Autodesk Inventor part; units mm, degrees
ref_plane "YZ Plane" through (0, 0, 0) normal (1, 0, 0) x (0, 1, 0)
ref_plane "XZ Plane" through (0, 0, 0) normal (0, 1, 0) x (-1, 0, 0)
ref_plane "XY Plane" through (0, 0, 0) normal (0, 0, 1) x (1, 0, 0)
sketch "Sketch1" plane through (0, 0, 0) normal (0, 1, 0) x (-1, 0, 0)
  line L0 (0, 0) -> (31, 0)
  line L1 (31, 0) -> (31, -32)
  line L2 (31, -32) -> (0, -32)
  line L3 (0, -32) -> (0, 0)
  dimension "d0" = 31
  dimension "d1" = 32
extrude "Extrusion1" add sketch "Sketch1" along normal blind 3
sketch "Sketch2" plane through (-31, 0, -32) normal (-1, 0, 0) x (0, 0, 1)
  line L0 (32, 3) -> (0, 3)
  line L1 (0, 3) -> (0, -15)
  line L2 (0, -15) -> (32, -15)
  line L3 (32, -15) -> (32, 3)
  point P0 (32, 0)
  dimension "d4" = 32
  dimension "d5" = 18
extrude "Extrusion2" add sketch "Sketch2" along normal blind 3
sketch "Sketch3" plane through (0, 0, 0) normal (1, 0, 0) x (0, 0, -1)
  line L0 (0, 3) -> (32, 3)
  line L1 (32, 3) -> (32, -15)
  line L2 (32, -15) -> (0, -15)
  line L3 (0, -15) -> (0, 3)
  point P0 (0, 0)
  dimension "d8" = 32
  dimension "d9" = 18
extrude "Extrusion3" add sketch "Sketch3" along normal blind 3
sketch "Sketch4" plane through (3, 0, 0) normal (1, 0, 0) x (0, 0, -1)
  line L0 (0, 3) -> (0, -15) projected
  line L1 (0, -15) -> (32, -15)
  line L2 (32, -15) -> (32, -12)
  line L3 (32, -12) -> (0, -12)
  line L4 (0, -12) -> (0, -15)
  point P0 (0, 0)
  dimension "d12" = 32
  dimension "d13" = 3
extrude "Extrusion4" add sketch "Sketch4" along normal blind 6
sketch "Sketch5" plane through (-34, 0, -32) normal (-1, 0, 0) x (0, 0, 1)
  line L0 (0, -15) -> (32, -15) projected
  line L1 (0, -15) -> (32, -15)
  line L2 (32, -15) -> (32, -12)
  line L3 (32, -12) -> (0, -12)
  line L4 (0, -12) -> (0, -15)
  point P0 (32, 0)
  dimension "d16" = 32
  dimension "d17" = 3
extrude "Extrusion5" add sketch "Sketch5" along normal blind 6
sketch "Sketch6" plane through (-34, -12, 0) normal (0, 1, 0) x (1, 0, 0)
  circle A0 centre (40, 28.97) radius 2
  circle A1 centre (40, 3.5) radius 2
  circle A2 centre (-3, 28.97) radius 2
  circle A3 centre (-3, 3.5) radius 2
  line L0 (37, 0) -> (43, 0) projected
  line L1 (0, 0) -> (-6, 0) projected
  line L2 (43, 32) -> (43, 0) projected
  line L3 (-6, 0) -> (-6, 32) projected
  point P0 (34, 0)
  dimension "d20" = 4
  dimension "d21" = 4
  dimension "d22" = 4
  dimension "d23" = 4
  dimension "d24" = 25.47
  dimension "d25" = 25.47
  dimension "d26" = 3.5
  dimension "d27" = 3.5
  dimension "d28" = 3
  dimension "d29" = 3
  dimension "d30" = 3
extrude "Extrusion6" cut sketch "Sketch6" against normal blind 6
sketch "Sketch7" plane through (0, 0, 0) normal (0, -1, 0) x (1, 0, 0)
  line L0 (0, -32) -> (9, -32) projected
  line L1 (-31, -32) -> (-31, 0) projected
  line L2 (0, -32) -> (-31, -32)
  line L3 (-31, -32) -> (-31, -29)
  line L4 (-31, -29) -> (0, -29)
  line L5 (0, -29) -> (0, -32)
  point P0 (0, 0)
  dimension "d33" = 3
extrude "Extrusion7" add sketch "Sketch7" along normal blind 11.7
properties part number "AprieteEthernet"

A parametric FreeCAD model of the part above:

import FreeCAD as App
import Part
import Sketcher


def add_polygon(sketch, points):
    """Adds a closed chain of lines whose ends are joined by coincident constraints."""
    first, n = sketch.GeometryCount, len(points)
    for a, b in zip(points, points[1:] + points[:1]):
        sketch.addGeometry(Part.LineSegment(App.Vector(*a, 0), App.Vector(*b, 0)), False)
    for i in range(n):
        sketch.addConstraint(Sketcher.Constraint("Coincident", first + i, 2, first + (i + 1) % n, 1))

doc = App.newDocument("Part")
params = doc.addObject("Spreadsheet::Sheet", "Params")
for row, (alias, value) in enumerate([
    ("sketch1_width", "31 mm"),
    ("sketch1_height", "32 mm"),
    ("pad1_length", "3 mm"),
    ("sketch2_width", "18 mm"),
    ("sketch2_height", "32 mm"),
    ("pad2_length", "3 mm"),
    ("sketch3_width", "18 mm"),
    ("sketch3_height", "32 mm"),
    ("pad3_length", "3 mm"),
    ("sketch4_width", "3 mm"),
    ("sketch4_height", "32 mm"),
    ("pad4_length", "6 mm"),
    ("sketch5_width", "3 mm"),
    ("sketch5_height", "32 mm"),
    ("pad5_length", "6 mm"),
    ("sketch6_diameter", "4 mm"),
    ("pocket1_length", "6 mm"),
    ("sketch7_height", "3 mm"),
    ("sketch7_width", "31 mm"),
    ("pad6_length", "11.7 mm"),
], start=1):
    params.set(f"A{row}", alias)
    params.set(f"B{row}", "=" + value)
    params.setAlias(f"B{row}", alias)

body = doc.addObject("PartDesign::Body", "Body")

# Sketch on XZ plane
sketch1 = body.newObject("Sketcher::SketchObject", "Sketch")
sketch1.AttachmentSupport = (doc.getObject("XZ_Plane"), [""])
sketch1.MapMode = "FlatFace"
add_polygon(sketch1, [(-31, 0), (0, 0), (0, -32), (-31, -32)])  # lines 0-3
sketch1.addConstraint(Sketcher.Constraint("Horizontal", 0))
sketch1.addConstraint(Sketcher.Constraint("Vertical", 1))
sketch1.addConstraint(Sketcher.Constraint("Horizontal", 2))
sketch1.addConstraint(Sketcher.Constraint("Vertical", 3))
sketch1.addConstraint(Sketcher.Constraint("Coincident", 0, 2, -1, 1))
sketch1.addConstraint(Sketcher.Constraint("DistanceX", 0, 1, 0, 2, 31.0))
sketch1.addConstraint(Sketcher.Constraint("DistanceY", 1, 2, 1, 1, 32.0))
sketch1.setExpression("Constraints[9]", "Params.sketch1_width")
sketch1.setExpression("Constraints[10]", "Params.sketch1_height")
pad1 = body.newObject("PartDesign::Pad", "Pad")
pad1.Profile = sketch1
pad1.setExpression("Length", "Params.pad1_length")
pad1.Reversed = True

# Sketch on YZ plane
sketch2 = body.newObject("Sketcher::SketchObject", "Sketch001")
sketch2.AttachmentSupport = (doc.getObject("YZ_Plane"), [""])
sketch2.MapMode = "FlatFace"
sketch2.AttachmentOffset = App.Placement(App.Vector(0, 0, -31), App.Rotation())
add_polygon(sketch2, [(-15, 0), (3, 0), (3, -32), (-15, -32)])  # lines 0-3
sketch2.addConstraint(Sketcher.Constraint("Horizontal", 0))
sketch2.addConstraint(Sketcher.Constraint("Vertical", 1))
sketch2.addConstraint(Sketcher.Constraint("Horizontal", 2))
sketch2.addConstraint(Sketcher.Constraint("Vertical", 3))
sketch2.addConstraint(Sketcher.Constraint("PointOnObject", 0, 2, -1))
sketch2.addConstraint(Sketcher.Constraint("DistanceX", 0, 1, 0, 2, 18.0))
sketch2.addConstraint(Sketcher.Constraint("DistanceY", 1, 2, 1, 1, 32.0))
sketch2.addConstraint(Sketcher.Constraint("DistanceX", -1, 1, 0, 2, 3.0))
sketch2.setExpression("Constraints[9]", "Params.sketch2_width")
sketch2.setExpression("Constraints[10]", "Params.sketch2_height")
pad2 = body.newObject("PartDesign::Pad", "Pad001")
pad2.Profile = sketch2
pad2.setExpression("Length", "Params.pad2_length")
pad2.Reversed = True

# Sketch on YZ plane
sketch3 = body.newObject("Sketcher::SketchObject", "Sketch002")
sketch3.AttachmentSupport = (doc.getObject("YZ_Plane"), [""])
sketch3.MapMode = "FlatFace"
add_polygon(sketch3, [(3, -32), (3, 0), (-15, 0), (-15, -32)])  # lines 0-3
sketch3.addConstraint(Sketcher.Constraint("Vertical", 0))
sketch3.addConstraint(Sketcher.Constraint("Horizontal", 1))
sketch3.addConstraint(Sketcher.Constraint("Vertical", 2))
sketch3.addConstraint(Sketcher.Constraint("Horizontal", 3))
sketch3.addConstraint(Sketcher.Constraint("PointOnObject", 0, 2, -1))
sketch3.addConstraint(Sketcher.Constraint("DistanceX", 1, 2, 1, 1, 18.0))
sketch3.addConstraint(Sketcher.Constraint("DistanceY", 0, 1, 0, 2, 32.0))
sketch3.addConstraint(Sketcher.Constraint("DistanceX", -1, 1, 0, 2, 3.0))
sketch3.setExpression("Constraints[9]", "Params.sketch3_width")
sketch3.setExpression("Constraints[10]", "Params.sketch3_height")
pad3 = body.newObject("PartDesign::Pad", "Pad002")
pad3.Profile = sketch3
pad3.setExpression("Length", "Params.pad3_length")

# Sketch on YZ plane
sketch4 = body.newObject("Sketcher::SketchObject", "Sketch003")
sketch4.AttachmentSupport = (doc.getObject("YZ_Plane"), [""])
sketch4.MapMode = "FlatFace"
sketch4.AttachmentOffset = App.Placement(App.Vector(0, 0, 3), App.Rotation())
add_polygon(sketch4, [(-12, -32), (-12, 0), (-15, 0), (-15, -32)])  # lines 0-3
sketch4.addConstraint(Sketcher.Constraint("Vertical", 0))
sketch4.addConstraint(Sketcher.Constraint("Horizontal", 1))
sketch4.addConstraint(Sketcher.Constraint("Vertical", 2))
sketch4.addConstraint(Sketcher.Constraint("Horizontal", 3))
sketch4.addConstraint(Sketcher.Constraint("PointOnObject", 0, 2, -1))
sketch4.addConstraint(Sketcher.Constraint("DistanceX", 1, 2, 1, 1, 3.0))
sketch4.addConstraint(Sketcher.Constraint("DistanceY", 0, 1, 0, 2, 32.0))
sketch4.addConstraint(Sketcher.Constraint("DistanceX", 0, 2, -1, 1, 12.0))
sketch4.setExpression("Constraints[9]", "Params.sketch4_width")
sketch4.setExpression("Constraints[10]", "Params.sketch4_height")
pad4 = body.newObject("PartDesign::Pad", "Pad003")
pad4.Profile = sketch4
pad4.setExpression("Length", "Params.pad4_length")

# Sketch on YZ plane
sketch5 = body.newObject("Sketcher::SketchObject", "Sketch004")
sketch5.AttachmentSupport = (doc.getObject("YZ_Plane"), [""])
sketch5.MapMode = "FlatFace"
sketch5.AttachmentOffset = App.Placement(App.Vector(0, 0, -34), App.Rotation())
add_polygon(sketch5, [(-12, -32), (-15, -32), (-15, 0), (-12, 0)])  # lines 0-3
sketch5.addConstraint(Sketcher.Constraint("Horizontal", 0))
sketch5.addConstraint(Sketcher.Constraint("Vertical", 1))
sketch5.addConstraint(Sketcher.Constraint("Horizontal", 2))
sketch5.addConstraint(Sketcher.Constraint("Vertical", 3))
sketch5.addConstraint(Sketcher.Constraint("PointOnObject", 1, 2, -1))
sketch5.addConstraint(Sketcher.Constraint("DistanceX", 0, 2, 0, 1, 3.0))
sketch5.addConstraint(Sketcher.Constraint("DistanceY", 1, 1, 1, 2, 32.0))
sketch5.addConstraint(Sketcher.Constraint("DistanceX", 0, 2, -1, 1, 15.0))
sketch5.setExpression("Constraints[9]", "Params.sketch5_width")
sketch5.setExpression("Constraints[10]", "Params.sketch5_height")
pad5 = body.newObject("PartDesign::Pad", "Pad004")
pad5.Profile = sketch5
pad5.setExpression("Length", "Params.pad5_length")
pad5.Reversed = True

# Sketch on XZ plane
sketch6 = body.newObject("Sketcher::SketchObject", "Sketch005")
sketch6.AttachmentSupport = (doc.getObject("XZ_Plane"), [""])
sketch6.MapMode = "FlatFace"
sketch6.AttachmentOffset = App.Placement(App.Vector(0, 0, 12), App.Rotation())
sketch6.addGeometry(Part.Circle(App.Vector(6, -29, 0), App.Vector(0, 0, 1), 2), False)
sketch6.addGeometry(Part.Circle(App.Vector(6, -3.5, 0), App.Vector(0, 0, 1), 2), False)
sketch6.addGeometry(Part.Circle(App.Vector(-37, -29, 0), App.Vector(0, 0, 1), 2), False)
sketch6.addGeometry(Part.Circle(App.Vector(-37, -3.5, 0), App.Vector(0, 0, 1), 2), False)
sketch6.addConstraint(Sketcher.Constraint("Equal", 0, 1))
sketch6.addConstraint(Sketcher.Constraint("Equal", 1, 2))
sketch6.addConstraint(Sketcher.Constraint("Equal", 2, 3))
sketch6.addConstraint(Sketcher.Constraint("Horizontal", 0, 3, 2, 3))
sketch6.addConstraint(Sketcher.Constraint("Horizontal", 1, 3, 3, 3))
sketch6.addConstraint(Sketcher.Constraint("Vertical", 0, 3, 1, 3))
sketch6.addConstraint(Sketcher.Constraint("Vertical", 2, 3, 3, 3))
sketch6.addConstraint(Sketcher.Constraint("Diameter", 0, 4.0))
sketch6.addConstraint(Sketcher.Constraint("DistanceY", 1, 3, -1, 1, 3.5))
sketch6.addConstraint(Sketcher.Constraint("DistanceY", 0, 3, 1, 3, 25.47))
sketch6.addConstraint(Sketcher.Constraint("DistanceX", -1, 1, 0, 3, 6.0))
sketch6.addConstraint(Sketcher.Constraint("DistanceX", 2, 3, -1, 1, 37.0))
sketch6.setExpression("Constraints[7]", "Params.sketch6_diameter")
pocket1 = body.newObject("PartDesign::Pocket", "Pocket")
pocket1.Profile = sketch6
pocket1.setExpression("Length", "Params.pocket1_length")
pocket1.Reversed = True

# Sketch on XZ plane
sketch7 = body.newObject("Sketcher::SketchObject", "Sketch006")
sketch7.AttachmentSupport = (doc.getObject("XZ_Plane"), [""])
sketch7.MapMode = "FlatFace"
add_polygon(sketch7, [(-31, -29), (-31, -32), (0, -32), (0, -29)])  # lines 0-3
sketch7.addConstraint(Sketcher.Constraint("Vertical", 0))
sketch7.addConstraint(Sketcher.Constraint("Horizontal", 1))
sketch7.addConstraint(Sketcher.Constraint("Vertical", 2))
sketch7.addConstraint(Sketcher.Constraint("Horizontal", 3))
sketch7.addConstraint(Sketcher.Constraint("PointOnObject", 1, 2, -2))
sketch7.addConstraint(Sketcher.Constraint("DistanceY", 0, 2, 0, 1, 3.0))
sketch7.addConstraint(Sketcher.Constraint("DistanceX", 1, 1, 1, 2, 31.0))
sketch7.addConstraint(Sketcher.Constraint("DistanceY", 0, 2, -1, 1, 32.0))
sketch7.setExpression("Constraints[9]", "Params.sketch7_height")
sketch7.setExpression("Constraints[10]", "Params.sketch7_width")
pad6 = body.newObject("PartDesign::Pad", "Pad005")
pad6.Profile = sketch7
pad6.setExpression("Length", "Params.pad6_length")

doc.recompute()
